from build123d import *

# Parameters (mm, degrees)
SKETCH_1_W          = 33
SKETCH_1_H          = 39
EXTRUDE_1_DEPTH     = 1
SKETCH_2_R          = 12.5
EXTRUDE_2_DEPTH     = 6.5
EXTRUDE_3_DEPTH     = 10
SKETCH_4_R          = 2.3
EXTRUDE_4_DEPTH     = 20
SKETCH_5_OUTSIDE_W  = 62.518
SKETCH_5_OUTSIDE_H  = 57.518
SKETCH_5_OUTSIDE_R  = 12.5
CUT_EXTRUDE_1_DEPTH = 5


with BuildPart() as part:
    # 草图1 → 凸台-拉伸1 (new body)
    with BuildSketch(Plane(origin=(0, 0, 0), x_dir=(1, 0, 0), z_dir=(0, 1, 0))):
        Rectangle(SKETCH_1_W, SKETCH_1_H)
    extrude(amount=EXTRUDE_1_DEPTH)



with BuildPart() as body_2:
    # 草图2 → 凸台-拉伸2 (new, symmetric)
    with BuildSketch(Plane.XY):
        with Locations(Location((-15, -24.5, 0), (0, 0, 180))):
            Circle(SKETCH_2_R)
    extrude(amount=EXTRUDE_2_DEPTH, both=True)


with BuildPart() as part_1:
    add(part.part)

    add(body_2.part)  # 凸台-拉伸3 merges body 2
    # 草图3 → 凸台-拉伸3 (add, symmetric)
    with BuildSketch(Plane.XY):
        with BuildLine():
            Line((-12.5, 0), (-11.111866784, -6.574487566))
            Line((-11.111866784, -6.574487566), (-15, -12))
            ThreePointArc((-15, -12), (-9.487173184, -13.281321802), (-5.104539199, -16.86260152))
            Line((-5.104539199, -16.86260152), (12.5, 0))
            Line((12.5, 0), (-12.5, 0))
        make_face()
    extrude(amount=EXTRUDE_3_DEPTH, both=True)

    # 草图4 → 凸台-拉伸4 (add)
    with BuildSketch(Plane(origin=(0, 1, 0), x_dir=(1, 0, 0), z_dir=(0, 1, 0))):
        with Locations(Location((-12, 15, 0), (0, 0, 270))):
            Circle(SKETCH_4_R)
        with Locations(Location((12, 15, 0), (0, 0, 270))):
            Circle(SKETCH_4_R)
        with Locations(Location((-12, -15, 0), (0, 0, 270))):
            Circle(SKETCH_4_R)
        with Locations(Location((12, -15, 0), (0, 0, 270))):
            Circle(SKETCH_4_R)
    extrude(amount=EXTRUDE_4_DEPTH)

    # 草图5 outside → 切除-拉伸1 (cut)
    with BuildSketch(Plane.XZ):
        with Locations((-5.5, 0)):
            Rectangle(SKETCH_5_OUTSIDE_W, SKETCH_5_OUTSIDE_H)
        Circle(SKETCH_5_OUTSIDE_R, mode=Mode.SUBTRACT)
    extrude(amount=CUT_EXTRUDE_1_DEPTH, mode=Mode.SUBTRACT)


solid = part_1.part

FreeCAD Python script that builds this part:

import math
import FreeCAD as App
import Part
import Sketcher
from FreeCAD import Vector
Q = App.Units.Quantity

doc = App.newDocument("Part")
body = doc.addObject("PartDesign::Body", "Body")

# Sketch on XZ plane
sketch1 = doc.addObject("Sketcher::SketchObject", "Sketch")
body.addObject(sketch1)
sketch1.AttachmentSupport = (doc.XZ_Plane, [""])
sketch1.MapMode = "FlatFace"
sketch1.addGeometry(Part.LineSegment(Vector(-16, -20, 0), Vector(-16, 20, 0)), False)
sketch1.addGeometry(Part.LineSegment(Vector(-16, 20, 0), Vector(16, 20, 0)), False)
sketch1.addGeometry(Part.LineSegment(Vector(16, 20, 0), Vector(16, -20, 0)), False)
sketch1.addGeometry(Part.LineSegment(Vector(16, -20, 0), Vector(-16, -20, 0)), False)
sketch1.addConstraint(Sketcher.Constraint("Coincident", 0, 2, 1, 1))
sketch1.addConstraint(Sketcher.Constraint("Coincident", 1, 2, 2, 1))
sketch1.addConstraint(Sketcher.Constraint("Coincident", 2, 2, 3, 1))
sketch1.addConstraint(Sketcher.Constraint("Coincident", 3, 2, 0, 1))
sketch1.addConstraint(Sketcher.Constraint("Vertical", 0))
sketch1.addConstraint(Sketcher.Constraint("Horizontal", 1))
sketch1.addConstraint(Sketcher.Constraint("Vertical", 2))
sketch1.addConstraint(Sketcher.Constraint("Horizontal", 3))
sketch1.addConstraint(Sketcher.Constraint("Symmetric", 0, 2, 2, 2, -1, 1))
sketch1.addConstraint(Sketcher.Constraint("DistanceX", 1, 1, 1, 2, Q("33 mm")))
sketch1.addConstraint(Sketcher.Constraint("DistanceY", 0, 1, 0, 2, Q("39 mm")))
pad1 = doc.addObject("PartDesign::Pad", "Pad")
body.addObject(pad1)
pad1.Profile = sketch1
pad1.Length = 1
pad1.Reversed = True
body2 = doc.addObject("PartDesign::Body", "Body001")

# Sketch on XY plane
sketch2 = doc.addObject("Sketcher::SketchObject", "Sketch001")
body2.addObject(sketch2)
sketch2.AttachmentSupport = (doc.getObject("XY_Plane001"), [""])
sketch2.MapMode = "FlatFace"
sketch2.addGeometry(Part.Circle(Vector(-15, -24, 0), Vector(0, 0, 1), 12), False)
sketch2.addConstraint(Sketcher.Constraint("Diameter", 0, Q("25 mm")))
sketch2.addConstraint(Sketcher.Constraint("DistanceX", 0, 3, -1, 1, Q("15 mm")))
sketch2.addConstraint(Sketcher.Constraint("DistanceY", 0, 3, -1, 1, Q("24.5 mm")))
pad2 = doc.addObject("PartDesign::Pad", "Pad001")
body2.addObject(pad2)
pad2.Profile = sketch2
pad2.Length = 13
pad2.Midplane = True
body.AllowCompound = True
doc.recompute()

boolean = doc.addObject("PartDesign::Boolean", "Boolean")
body.addObject(boolean)
boolean.Type = "Fuse"
boolean.addObjects([body2])

# Sketch on XY plane
sketch3 = doc.addObject("Sketcher::SketchObject", "Sketch002")
body.addObject(sketch3)
sketch3.AttachmentSupport = (doc.XY_Plane, [""])
sketch3.MapMode = "FlatFace"
sketch3.addGeometry(Part.LineSegment(Vector(-12, 0, 0), Vector(-11, -7, 0)), False)
sketch3.addGeometry(Part.LineSegment(Vector(-11, -7, 0), Vector(-15, -12, 0)), False)
sketch3.addGeometry(Part.ArcOfCircle(Part.Circle(Vector(-15, -24, 0), Vector(0, 0, 1), 12), math.radians(38), math.radians(90)), False)
sketch3.addGeometry(Part.LineSegment(Vector(-5, -17, 0), Vector(12, 0, 0)), False)
sketch3.addGeometry(Part.LineSegment(Vector(12, 0, 0), Vector(-12, 0, 0)), False)
sketch3.addConstraint(Sketcher.Constraint("Coincident", 0, 2, 1, 1))
sketch3.addConstraint(Sketcher.Constraint("Coincident", 1, 2, 2, 2))
sketch3.addConstraint(Sketcher.Constraint("Coincident", 2, 1, 3, 1))
sketch3.addConstraint(Sketcher.Constraint("Coincident", 3, 2, 4, 1))
sketch3.addConstraint(Sketcher.Constraint("Coincident", 4, 2, 0, 1))
sketch3.addConstraint(Sketcher.Constraint("Horizontal", 4))
sketch3.addConstraint(Sketcher.Constraint("Symmetric", 3, 2, 4, 2, -1, 1))
sketch3.addConstraint(Sketcher.Constraint("Vertical", 2, 3, 1, 2))
sketch3.addConstraint(Sketcher.Constraint("Radius", 2, Q("12.5 mm")))
sketch3.addConstraint(Sketcher.Constraint("DistanceX", 4, 2, 4, 1, Q("25 mm")))
sketch3.addConstraint(Sketcher.Constraint("DistanceX", 2, 3, -1, 1, Q("15 mm")))
sketch3.addConstraint(Sketcher.Constraint("DistanceY", 1, 2, -1, 1, Q("12 mm")))
sketch3.addConstraint(Sketcher.Constraint("DistanceY", 2, 1, -1, 1, Q("16.862602 mm")))
sketch3.addConstraint(Sketcher.Constraint("Distance", 1, Q("6.674861 mm")))
sketch3.addConstraint(Sketcher.Constraint("Distance", 0, Q("6.719435 mm")))
pad3 = doc.addObject("PartDesign::Pad", "Pad002")
body.addObject(pad3)
pad3.Profile = sketch3
pad3.Length = 20
pad3.Midplane = True

# Sketch on XZ plane
sketch4 = doc.addObject("Sketcher::SketchObject", "Sketch003")
body.addObject(sketch4)
sketch4.AttachmentSupport = (doc.XZ_Plane, [""])
sketch4.MapMode = "FlatFace"
sketch4.AttachmentOffset = App.Placement(Vector(0, 0, -1), App.Rotation())
sketch4.addGeometry(Part.Circle(Vector(-12, -15, 0), Vector(0, 0, 1), 2.3), False)
sketch4.addGeometry(Part.Circle(Vector(12, -15, 0), Vector(0, 0, 1), 2.3), False)
sketch4.addGeometry(Part.Circle(Vector(-12, 15, 0), Vector(0, 0, 1), 2.3), False)
sketch4.addGeometry(Part.Circle(Vector(12, 15, 0), Vector(0, 0, 1), 2.3), False)
sketch4.addConstraint(Sketcher.Constraint("Equal", 0, 1))
sketch4.addConstraint(Sketcher.Constraint("Equal", 1, 2))
sketch4.addConstraint(Sketcher.Constraint("Equal", 2, 3))
sketch4.addConstraint(Sketcher.Constraint("Symmetric", 1, 3, 2, 3, -1, 1))
sketch4.addConstraint(Sketcher.Constraint("Symmetric", 0, 3, 3, 3, -1, 1))
sketch4.addConstraint(Sketcher.Constraint("Symmetric", 0, 3, 1, 3, -2))
sketch4.addConstraint(Sketcher.Constraint("Diameter", 0, Q("4.6 mm")))
sketch4.addConstraint(Sketcher.Constraint("DistanceX", 0, 3, -1, 1, Q("12 mm")))
sketch4.addConstraint(Sketcher.Constraint("DistanceY", 0, 3, -1, 1, Q("15 mm")))
pad4 = doc.addObject("PartDesign::Pad", "Pad003")
body.addObject(pad4)
pad4.Profile = sketch4
pad4.Length = 20
pad4.Reversed = True

# Sketch on XZ plane
sketch5 = doc.addObject("Sketcher::SketchObject", "Sketch004")
body.addObject(sketch5)
sketch5.AttachmentSupport = (doc.XZ_Plane, [""])
sketch5.MapMode = "FlatFace"
sketch5.addGeometry(Part.LineSegment(Vector(-37, 29, 0), Vector(-37, -29, 0)), False)
sketch5.addGeometry(Part.LineSegment(Vector(-37, -29, 0), Vector(26, -29, 0)), False)
sketch5.addGeometry(Part.LineSegment(Vector(26, -29, 0), Vector(26, 29, 0)), False)
sketch5.addGeometry(Part.LineSegment(Vector(26, 29, 0), Vector(-37, 29, 0)), False)
sketch5.addGeometry(Part.Circle(Vector(0, 0, 0), Vector(0, 0, 1), 12), False)
sketch5.addConstraint(Sketcher.Constraint("Coincident", 0, 2, 1, 1))
sketch5.addConstraint(Sketcher.Constraint("Coincident", 1, 2, 2, 1))
sketch5.addConstraint(Sketcher.Constraint("Coincident", 2, 2, 3, 1))
sketch5.addConstraint(Sketcher.Constraint("Coincident", 3, 2, 0, 1))
sketch5.addConstraint(Sketcher.Constraint("Vertical", 0))
sketch5.addConstraint(Sketcher.Constraint("Horizontal", 1))
sketch5.addConstraint(Sketcher.Constraint("Vertical", 2))
sketch5.addConstraint(Sketcher.Constraint("Horizontal", 3))
sketch5.addConstraint(Sketcher.Constraint("Coincident", 4, 3, -1, 1))
sketch5.addConstraint(Sketcher.Constraint("Diameter", 4, Q("25 mm")))
sketch5.addConstraint(Sketcher.Constraint("DistanceX", 1, 1, 1, 2, Q("62.518 mm")))
sketch5.addConstraint(Sketcher.Constraint("DistanceY", 0, 2, 0, 1, Q("57.518 mm")))
sketch5.addConstraint(Sketcher.Constraint("DistanceX", 0, 2, -1, 1, Q("36.759 mm")))
sketch5.addConstraint(Sketcher.Constraint("DistanceY", 0, 2, -1, 1, Q("28.759 mm")))
pocket1 = doc.addObject("PartDesign::Pocket", "Pocket")
body.addObject(pocket1)
pocket1.Profile = sketch5
pocket1.Length = 5
pocket1.Reversed = True

doc.recompute()
